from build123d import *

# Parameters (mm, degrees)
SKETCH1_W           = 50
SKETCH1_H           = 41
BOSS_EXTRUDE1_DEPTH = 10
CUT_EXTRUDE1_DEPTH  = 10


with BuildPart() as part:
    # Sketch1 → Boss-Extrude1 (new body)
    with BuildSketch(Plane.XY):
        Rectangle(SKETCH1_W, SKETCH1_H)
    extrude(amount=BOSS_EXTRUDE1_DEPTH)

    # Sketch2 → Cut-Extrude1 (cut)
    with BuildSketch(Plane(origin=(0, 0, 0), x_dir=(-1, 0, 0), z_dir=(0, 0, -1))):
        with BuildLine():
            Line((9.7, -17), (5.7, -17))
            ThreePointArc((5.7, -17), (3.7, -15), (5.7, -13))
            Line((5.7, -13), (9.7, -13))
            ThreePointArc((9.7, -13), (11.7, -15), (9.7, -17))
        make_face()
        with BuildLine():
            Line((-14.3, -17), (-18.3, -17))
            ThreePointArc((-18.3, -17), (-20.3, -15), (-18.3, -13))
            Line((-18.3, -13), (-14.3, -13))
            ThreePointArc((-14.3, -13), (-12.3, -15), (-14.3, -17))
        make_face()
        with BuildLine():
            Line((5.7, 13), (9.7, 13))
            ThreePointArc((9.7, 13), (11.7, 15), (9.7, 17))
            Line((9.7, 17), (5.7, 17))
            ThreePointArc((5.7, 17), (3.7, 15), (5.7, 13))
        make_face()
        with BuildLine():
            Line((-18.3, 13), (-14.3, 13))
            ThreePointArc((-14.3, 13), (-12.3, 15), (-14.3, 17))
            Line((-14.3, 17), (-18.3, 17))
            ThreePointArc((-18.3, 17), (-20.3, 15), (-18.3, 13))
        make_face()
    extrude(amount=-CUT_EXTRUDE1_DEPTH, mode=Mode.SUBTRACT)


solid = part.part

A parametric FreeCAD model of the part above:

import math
import FreeCAD as App
import Part
import Sketcher

V = App.Vector
Q = App.Units.Quantity

doc = App.newDocument("Part")
body = doc.addObject("PartDesign::Body", "Body")

# Sketch on XY plane
sketch1 = body.newObject("Sketcher::SketchObject", "Sketch")
sketch1.AttachmentSupport = (doc.getObject("XY_Plane"), [""])
sketch1.MapMode = "FlatFace"
sketch1.addGeometry([
    Part.LineSegment(V(-25, 20.5, 0), V(-25, -20.5, 0)),
    Part.LineSegment(V(-25, -20.5, 0), V(25, -20.5, 0)),
    Part.LineSegment(V(25, -20.5, 0), V(25, 20.5, 0)),
    Part.LineSegment(V(25, 20.5, 0), V(-25, 20.5, 0)),
], False)
sketch1.addConstraint([
    Sketcher.Constraint("Coincident", 0, 2, 1, 1),
    Sketcher.Constraint("Coincident", 1, 2, 2, 1),
    Sketcher.Constraint("Coincident", 2, 2, 3, 1),
    Sketcher.Constraint("Coincident", 3, 2, 0, 1),
    Sketcher.Constraint("Vertical", 0),
    Sketcher.Constraint("Horizontal", 1),
    Sketcher.Constraint("Vertical", 2),
    Sketcher.Constraint("Horizontal", 3),
    Sketcher.Constraint("Symmetric", 0, 2, 2, 2, -1, 1),
    Sketcher.Constraint("DistanceX", 1, 1, 1, 2, Q("50 mm")),
    Sketcher.Constraint("DistanceY", 0, 2, 0, 1, Q("41 mm")),
])
pad1 = body.newObject("PartDesign::Pad", "Pad")
pad1.Profile = sketch1
pad1.Length = 10

# Sketch on XY plane
sketch2 = body.newObject("Sketcher::SketchObject", "Sketch001")
sketch2.AttachmentSupport = (doc.getObject("XY_Plane"), [""])
sketch2.MapMode = "FlatFace"
sketch2.addGeometry([
    Part.LineSegment(V(-5.7, -17, 0), V(-9.7, -17, 0)),  # 0
    Part.ArcOfCircle(Part.Circle(V(-9.7, -15, 0), V(0, 0, 1), 2), math.radians(90), math.radians(270)),  # 1
    Part.LineSegment(V(-9.7, -13, 0), V(-5.7, -13, 0)),  # 2
    Part.ArcOfCircle(Part.Circle(V(-5.7, -15, 0), V(0, 0, 1), 2), math.radians(-90), math.radians(90)),  # 3
    Part.LineSegment(V(18.3, -17, 0), V(14.3, -17, 0)),  # 4
    Part.ArcOfCircle(Part.Circle(V(14.3, -15, 0), V(0, 0, 1), 2), math.radians(90), math.radians(270)),  # 5
    Part.LineSegment(V(14.3, -13, 0), V(18.3, -13, 0)),  # 6
    Part.ArcOfCircle(Part.Circle(V(18.3, -15, 0), V(0, 0, 1), 2), math.radians(-90), math.radians(90)),  # 7
    Part.LineSegment(V(-5.7, 13, 0), V(-9.7, 13, 0)),  # 8
    Part.ArcOfCircle(Part.Circle(V(-9.7, 15, 0), V(0, 0, 1), 2), math.radians(90), math.radians(270)),  # 9
    Part.LineSegment(V(-9.7, 17, 0), V(-5.7, 17, 0)),  # 10
    Part.ArcOfCircle(Part.Circle(V(-5.7, 15, 0), V(0, 0, 1), 2), math.radians(-90), math.radians(90)),  # 11
    Part.LineSegment(V(18.3, 13, 0), V(14.3, 13, 0)),  # 12
    Part.ArcOfCircle(Part.Circle(V(14.3, 15, 0), V(0, 0, 1), 2), math.radians(90), math.radians(270)),  # 13
    Part.LineSegment(V(14.3, 17, 0), V(18.3, 17, 0)),  # 14
    Part.ArcOfCircle(Part.Circle(V(18.3, 15, 0), V(0, 0, 1), 2), math.radians(-90), math.radians(90)),  # 15
], False)
sketch2.addConstraint([
    Sketcher.Constraint("Tangent", 0, 2, 1, 2),
    Sketcher.Constraint("Tangent", 1, 1, 2, 1),
    Sketcher.Constraint("Tangent", 2, 2, 3, 2),
    Sketcher.Constraint("Tangent", 3, 1, 0, 1),
    Sketcher.Constraint("Tangent", 4, 2, 5, 2),
    Sketcher.Constraint("Tangent", 5, 1, 6, 1),
    Sketcher.Constraint("Tangent", 6, 2, 7, 2),
    Sketcher.Constraint("Tangent", 7, 1, 4, 1),
    Sketcher.Constraint("Tangent", 8, 2, 9, 2),
    Sketcher.Constraint("Tangent", 9, 1, 10, 1),
    Sketcher.Constraint("Tangent", 10, 2, 11, 2),
    Sketcher.Constraint("Tangent", 11, 1, 8, 1),
    Sketcher.Constraint("Tangent", 12, 2, 13, 2),
    Sketcher.Constraint("Tangent", 13, 1, 14, 1),
    Sketcher.Constraint("Tangent", 14, 2, 15, 2),
    Sketcher.Constraint("Tangent", 15, 1, 12, 1),
    Sketcher.Constraint("Horizontal", 0),
    Sketcher.Constraint("Horizontal", 2),
    Sketcher.Constraint("Horizontal", 4),
    Sketcher.Constraint("Horizontal", 6),
    Sketcher.Constraint("Horizontal", 8),
    Sketcher.Constraint("Horizontal", 10),
    Sketcher.Constraint("Horizontal", 12),
    Sketcher.Constraint("Horizontal", 14),
    Sketcher.Constraint("Equal", 3, 5),
    Sketcher.Constraint("Equal", 7, 9),
    Sketcher.Constraint("Equal", 11, 13),
    Sketcher.Constraint("Symmetric", 1, 3, 9, 3, -1),
    Sketcher.Constraint("Symmetric", 5, 3, 13, 3, -1),
    Sketcher.Constraint("Horizontal", 3, 3, 5, 3),
    Sketcher.Constraint("Vertical", 3, 3, 11, 3),
    Sketcher.Constraint("Vertical", 7, 3, 15, 3),
    Sketcher.Constraint("Equal", 2, 4),
    Sketcher.Constraint("Radius", 1, Q("2 mm")),
    Sketcher.Constraint("DistanceX", 0, 2, 0, 1, Q("4 mm")),
    Sketcher.Constraint("DistanceY", 1, 3, -1, 1, Q("15 mm")),
    Sketcher.Constraint("DistanceX", 3, 3, 5, 3, Q("20 mm")),
    Sketcher.Constraint("DistanceX", 1, 3, -1, 1, Q("9.7 mm")),
])
pocket1 = body.newObject("PartDesign::Pocket", "Pocket")
pocket1.Profile = sketch2
pocket1.Length = 10
pocket1.Reversed = True

doc.recompute()
